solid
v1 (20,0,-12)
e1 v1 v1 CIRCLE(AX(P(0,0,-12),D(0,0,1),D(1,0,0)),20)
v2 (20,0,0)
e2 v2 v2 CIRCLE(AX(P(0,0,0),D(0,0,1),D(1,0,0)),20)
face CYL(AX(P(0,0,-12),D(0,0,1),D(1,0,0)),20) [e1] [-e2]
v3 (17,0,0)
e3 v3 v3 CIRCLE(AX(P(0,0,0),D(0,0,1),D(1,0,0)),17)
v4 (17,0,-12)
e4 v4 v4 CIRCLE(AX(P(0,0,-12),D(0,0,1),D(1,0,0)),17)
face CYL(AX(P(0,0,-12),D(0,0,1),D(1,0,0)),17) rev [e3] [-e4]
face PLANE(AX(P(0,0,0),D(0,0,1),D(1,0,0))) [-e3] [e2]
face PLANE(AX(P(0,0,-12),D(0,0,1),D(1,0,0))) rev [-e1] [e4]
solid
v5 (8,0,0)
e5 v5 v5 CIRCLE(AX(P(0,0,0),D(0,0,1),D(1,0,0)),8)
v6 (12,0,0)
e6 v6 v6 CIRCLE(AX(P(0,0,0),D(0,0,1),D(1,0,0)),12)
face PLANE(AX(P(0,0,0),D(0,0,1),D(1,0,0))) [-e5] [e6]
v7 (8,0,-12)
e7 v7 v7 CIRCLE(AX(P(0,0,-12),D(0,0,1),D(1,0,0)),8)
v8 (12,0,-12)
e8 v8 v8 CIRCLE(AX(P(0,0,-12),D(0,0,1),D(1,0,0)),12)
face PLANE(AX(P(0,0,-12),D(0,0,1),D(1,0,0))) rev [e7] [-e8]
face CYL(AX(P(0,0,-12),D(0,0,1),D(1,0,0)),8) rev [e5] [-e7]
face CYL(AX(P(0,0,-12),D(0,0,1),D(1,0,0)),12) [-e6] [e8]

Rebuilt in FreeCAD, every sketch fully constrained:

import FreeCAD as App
import Part
import Sketcher

V = App.Vector

doc = App.newDocument("Part")
body = doc.addObject("PartDesign::Body", "Body")

sketch1 = body.newObject("Sketcher::SketchObject", "Sketch")
sketch1.AttachmentSupport = (doc.getObject("XY_Plane"), [""])
sketch1.MapMode = "FlatFace"
sketch1.addGeometry(Part.Circle(V(0, 0, 0), V(0, 0, 1), 20), False)
sketch1.addGeometry(Part.Circle(V(0, 0, 0), V(0, 0, 1), 17), False)
sketch1.addConstraint(Sketcher.Constraint("Coincident", 0, 3, -1, 1))
sketch1.addConstraint(Sketcher.Constraint("Coincident", 1, 3, -1, 1))
sketch1.addConstraint(Sketcher.Constraint("Diameter", 0, 40.0))
sketch1.addConstraint(Sketcher.Constraint("Diameter", 1, 34.0))
pad1 = body.newObject("PartDesign::Pad", "Pad")
pad1.Profile = sketch1
pad1.Length = 12
pad1.Reversed = True
body2 = doc.addObject("PartDesign::Body", "Body001")

sketch2 = body2.newObject("Sketcher::SketchObject", "Sketch001")
sketch2.AttachmentSupport = (doc.getObject("XY_Plane001"), [""])
sketch2.MapMode = "FlatFace"
sketch2.addGeometry(Part.Circle(V(0, 0, 0), V(0, 0, 1), 12), False)
sketch2.addGeometry(Part.Circle(V(0, 0, 0), V(0, 0, 1), 8), False)
sketch2.addConstraint(Sketcher.Constraint("Coincident", 0, 3, -1, 1))
sketch2.addConstraint(Sketcher.Constraint("Coincident", 1, 3, -1, 1))
sketch2.addConstraint(Sketcher.Constraint("Diameter", 0, 24.0))
sketch2.addConstraint(Sketcher.Constraint("Diameter", 1, 16.0))
pad2 = body2.newObject("PartDesign::Pad", "Pad001")
pad2.Profile = sketch2
pad2.Length = 12
pad2.Reversed = True

doc.recompute()
